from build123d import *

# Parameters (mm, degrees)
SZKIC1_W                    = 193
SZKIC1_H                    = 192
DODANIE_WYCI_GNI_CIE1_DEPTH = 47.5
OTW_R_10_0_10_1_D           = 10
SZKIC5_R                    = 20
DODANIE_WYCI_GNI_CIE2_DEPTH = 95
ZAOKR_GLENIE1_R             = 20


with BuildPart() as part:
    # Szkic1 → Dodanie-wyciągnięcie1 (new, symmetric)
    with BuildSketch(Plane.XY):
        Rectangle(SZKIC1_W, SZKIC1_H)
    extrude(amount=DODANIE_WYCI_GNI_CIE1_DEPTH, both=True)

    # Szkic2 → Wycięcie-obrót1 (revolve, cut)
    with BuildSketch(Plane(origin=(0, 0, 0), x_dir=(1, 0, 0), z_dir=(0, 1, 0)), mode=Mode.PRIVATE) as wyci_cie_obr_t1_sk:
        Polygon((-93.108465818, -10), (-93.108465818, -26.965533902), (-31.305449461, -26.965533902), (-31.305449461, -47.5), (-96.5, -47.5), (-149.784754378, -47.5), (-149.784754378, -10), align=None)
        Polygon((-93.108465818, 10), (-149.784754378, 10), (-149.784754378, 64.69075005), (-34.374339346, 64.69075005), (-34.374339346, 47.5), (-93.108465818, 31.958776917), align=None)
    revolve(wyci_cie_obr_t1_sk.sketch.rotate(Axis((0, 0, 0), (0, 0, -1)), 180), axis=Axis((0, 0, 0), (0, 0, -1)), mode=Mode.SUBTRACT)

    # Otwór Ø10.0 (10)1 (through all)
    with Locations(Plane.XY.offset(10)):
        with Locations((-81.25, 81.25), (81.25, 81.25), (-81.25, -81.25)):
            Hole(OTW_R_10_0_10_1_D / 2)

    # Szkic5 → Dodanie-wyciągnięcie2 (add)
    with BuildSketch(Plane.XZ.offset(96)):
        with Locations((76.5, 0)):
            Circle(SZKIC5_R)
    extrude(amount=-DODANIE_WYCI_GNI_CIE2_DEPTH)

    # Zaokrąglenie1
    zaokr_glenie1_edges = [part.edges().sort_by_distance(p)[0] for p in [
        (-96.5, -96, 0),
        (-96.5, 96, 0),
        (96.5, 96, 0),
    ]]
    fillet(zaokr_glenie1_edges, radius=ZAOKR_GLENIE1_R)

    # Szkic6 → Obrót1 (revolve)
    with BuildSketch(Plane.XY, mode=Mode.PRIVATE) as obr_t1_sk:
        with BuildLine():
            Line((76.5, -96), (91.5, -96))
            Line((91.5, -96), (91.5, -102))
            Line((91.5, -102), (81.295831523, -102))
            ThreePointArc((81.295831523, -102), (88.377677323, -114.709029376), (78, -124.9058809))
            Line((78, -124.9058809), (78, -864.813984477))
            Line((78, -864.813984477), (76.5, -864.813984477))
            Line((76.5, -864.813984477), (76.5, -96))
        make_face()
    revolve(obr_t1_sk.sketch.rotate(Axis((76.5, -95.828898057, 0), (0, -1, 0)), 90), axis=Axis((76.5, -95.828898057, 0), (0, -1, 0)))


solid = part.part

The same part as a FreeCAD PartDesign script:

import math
import FreeCAD as App
import Part
import Sketcher
from FreeCAD import Vector
Q = App.Units.Quantity


def edges_at(feature, points):
    """Names of the edges that pass closest to the given points."""
    edges = feature.Shape.Edges
    near = lambda p: min(range(len(edges)), key=lambda i: edges[i].distToShape(Part.Vertex(*p))[0])
    return sorted({f"Edge{near(p) + 1}" for p in points})


def add_polygon(sketch, points):
    """Adds a closed chain of lines whose ends are joined by coincident constraints."""
    first, n = sketch.GeometryCount, len(points)
    for a, b in zip(points, points[1:] + points[:1]):
        sketch.addGeometry(Part.LineSegment(App.Vector(*a, 0), App.Vector(*b, 0)), False)
    for i in range(n):
        sketch.addConstraint(Sketcher.Constraint("Coincident", first + i, 2, first + (i + 1) % n, 1))

doc = App.newDocument("Part")
body = doc.addObject("PartDesign::Body", "Body")

# Sketch on XY plane
sketch1 = body.newObject("Sketcher::SketchObject", "Sketch")
sketch1.AttachmentSupport = (doc.getObject("XY_Plane"), [""])
sketch1.MapMode = "FlatFace"
add_polygon(sketch1, [(-96, 96), (-96, -96), (96, -96), (96, 96)])  # lines 0-3
sketch1.addConstraint([
    Sketcher.Constraint("Vertical", 0),
    Sketcher.Constraint("Horizontal", 1),
    Sketcher.Constraint("Vertical", 2),
    Sketcher.Constraint("Horizontal", 3),
    Sketcher.Constraint("Symmetric", 0, 2, 2, 2, -1, 1),
    Sketcher.Constraint("DistanceX", 1, 1, 1, 2, Q("193 mm")),
    Sketcher.Constraint("DistanceY", 0, 2, 0, 1, Q("192 mm")),
])
pad1 = body.newObject("PartDesign::Pad", "Pad")
pad1.Profile = sketch1
pad1.Length = 95
pad1.Midplane = True

# Sketch on XZ plane
sketch2 = body.newObject("Sketcher::SketchObject", "Sketch001")
sketch2.AttachmentSupport = (doc.getObject("XZ_Plane"), [""])
sketch2.MapMode = "FlatFace"
add_polygon(sketch2, [(-93, 27), (-93, 10), (-150, 10), (-150, 48), (-31, 48), (-31, 27)])  # lines 0-5
add_polygon(sketch2, [(-150, -10), (-93, -10), (-93, -32), (-34, -48), (-34, -65), (-150, -65)])  # lines 6-11
sketch2.addConstraint([
    Sketcher.Constraint("Vertical", 0),
    Sketcher.Constraint("Horizontal", 1),
    Sketcher.Constraint("Vertical", 2),
    Sketcher.Constraint("Horizontal", 3),
    Sketcher.Constraint("Vertical", 4),
    Sketcher.Constraint("Horizontal", 5),
    Sketcher.Constraint("Horizontal", 6),
    Sketcher.Constraint("Vertical", 7),
    Sketcher.Constraint("Vertical", 9),
    Sketcher.Constraint("Horizontal", 10),
    Sketcher.Constraint("Vertical", 11),
    Sketcher.Constraint("Symmetric", 0, 2, 6, 2, -1),
    Sketcher.Constraint("Vertical", 2, 2, 10, 2),
    Sketcher.Constraint("DistanceY", 2, 1, 2, 2, Q("37.5 mm")),
    Sketcher.Constraint("DistanceY", -1, 1, 0, 2, Q("10 mm")),
    Sketcher.Constraint("DistanceY", 8, 2, -1, 1, Q("47.5 mm")),
    Sketcher.Constraint("DistanceX", 1, 2, 1, 1, Q("56.676289 mm")),
    Sketcher.Constraint("DistanceY", 9, 2, 9, 1, Q("17.19075 mm")),
    Sketcher.Constraint("Distance", 8, Q("60.755471 mm")),
    Sketcher.Constraint("DistanceX", 3, 1, 3, 2, Q("118.479305 mm")),
    Sketcher.Constraint("DistanceX", 10, 2, 10, 1, Q("115.410415 mm")),
    Sketcher.Constraint("DistanceY", 0, 2, 0, 1, Q("16.965534 mm")),
    Sketcher.Constraint("DistanceX", 3, 2, -1, 1, Q("31.305449 mm")),
])
groove = body.newObject("PartDesign::Groove", "Groove")
groove.Profile = sketch2
groove.ReferenceAxis = (sketch2, ["V_Axis"])
groove.Angle = 360

# Sketch on XY plane
sketch3 = body.newObject("Sketcher::SketchObject", "Sketch002")
sketch3.AttachmentSupport = (doc.getObject("XY_Plane"), [""])
sketch3.MapMode = "FlatFace"
sketch3.AttachmentOffset = App.Placement(Vector(0, 0, 10), App.Rotation())
sketch3.addGeometry([
    Part.Circle(Vector(-81, 81, 0), Vector(0, 0, 1), 5),
    Part.Circle(Vector(81, 81, 0), Vector(0, 0, 1), 5),
    Part.Circle(Vector(-81, -81, 0), Vector(0, 0, 1), 5),
], False)
sketch3.addConstraint([
    Sketcher.Constraint("Equal", 0, 1),
    Sketcher.Constraint("Equal", 1, 2),
    Sketcher.Constraint("Symmetric", 1, 3, 2, 3, -1, 1),
    Sketcher.Constraint("Symmetric", 0, 3, 1, 3, -2),
    Sketcher.Constraint("Diameter", 0, Q("10 mm")),
    Sketcher.Constraint("DistanceX", 0, 3, 1, 3, Q("162.5 mm")),
    Sketcher.Constraint("DistanceY", 2, 3, 0, 3, Q("162.5 mm")),
])
doc.recompute()
hole = body.newObject("PartDesign::Hole", "Hole")
hole.Profile = sketch3
hole.ThreadType = "None"
hole.Diameter = 10
hole.DepthType = "ThroughAll"

# Sketch on XZ plane
sketch4 = body.newObject("Sketcher::SketchObject", "Sketch003")
sketch4.AttachmentSupport = (doc.getObject("XZ_Plane"), [""])
sketch4.MapMode = "FlatFace"
sketch4.AttachmentOffset = App.Placement(Vector(0, 0, 96), App.Rotation())
sketch4.addGeometry(Part.Circle(Vector(76, 0, 0), Vector(0, 0, 1), 20), False)
sketch4.addConstraint([
    Sketcher.Constraint("PointOnObject", 0, 3, -1),
    Sketcher.Constraint("Diameter", 0, Q("40 mm")),
    Sketcher.Constraint("DistanceX", -1, 1, 0, 3, Q("76.5 mm")),
])
pad2 = body.newObject("PartDesign::Pad", "Pad001")
pad2.Profile = sketch4
pad2.Length = 95
pad2.Reversed = True
doc.recompute()

fillet = body.newObject("PartDesign::Fillet", "Fillet")
fillet.Base = (pad2, edges_at(pad2, [(-96.5, -96, 0), (-96.5, 96, 0), (96.5, 96, 0)]))
fillet.Radius = 20

# Sketch on XY plane
sketch5 = body.newObject("Sketcher::SketchObject", "Sketch004")
sketch5.AttachmentSupport = (doc.getObject("XY_Plane"), [""])
sketch5.MapMode = "FlatFace"
sketch5.addGeometry([
    Part.LineSegment(Vector(91.5, -96, 0), Vector(76.5, -96, 0)),  # 0
    Part.LineSegment(Vector(76.5, -96, 0), Vector(76.5, -864.8, 0)),  # 1
    Part.LineSegment(Vector(76.5, -864.8, 0), Vector(78, -864.8, 0)),  # 2
    Part.LineSegment(Vector(78, -864.8, 0), Vector(78, -124.9, 0)),  # 3
    Part.ArcOfCircle(Part.Circle(Vector(76.5, -113, 0), Vector(0, 0, 1), 12), math.radians(-83), math.radians(66)),  # 4
    Part.LineSegment(Vector(81.3, -102, 0), Vector(91.5, -102, 0)),  # 5
    Part.LineSegment(Vector(91.5, -102, 0), Vector(91.5, -96, 0)),  # 6
], False)
sketch5.addGeometry(Part.LineSegment(Vector(76.5, -96, 0), Vector(76.5, -864.8, 0)), True)  # axis
sketch5.addConstraint([
    Sketcher.Constraint("Coincident", 0, 2, 1, 1),
    Sketcher.Constraint("Coincident", 1, 2, 2, 1),
    Sketcher.Constraint("Coincident", 2, 2, 3, 1),
    Sketcher.Constraint("Coincident", 3, 2, 4, 1),
    Sketcher.Constraint("Coincident", 4, 2, 5, 1),
    Sketcher.Constraint("Coincident", 5, 2, 6, 1),
    Sketcher.Constraint("Coincident", 6, 2, 0, 1),
    Sketcher.Constraint("Horizontal", 0),
    Sketcher.Constraint("Vertical", 1),
    Sketcher.Constraint("Horizontal", 2),
    Sketcher.Constraint("Vertical", 3),
    Sketcher.Constraint("Horizontal", 5),
    Sketcher.Constraint("Vertical", 6),
    Sketcher.Constraint("Vertical", 7),
    Sketcher.Constraint("Coincident", 7, 1, 0, 2),
    Sketcher.Constraint("Horizontal", 2, 2, 7, 2),
    Sketcher.Constraint("Vertical", 4, 3, 0, 2),
    Sketcher.Constraint("Radius", 4, Q("12 mm")),
    Sketcher.Constraint("DistanceX", 0, 2, 0, 1, Q("15 mm")),
    Sketcher.Constraint("DistanceY", 6, 1, 6, 2, Q("6 mm")),
    Sketcher.Constraint("DistanceX", 2, 1, 2, 2, Q("1.5 mm")),
    Sketcher.Constraint("DistanceY", 4, 3, -1, 1, Q("113 mm")),
    Sketcher.Constraint("DistanceY", 0, 2, -1, 1, Q("96 mm")),
    Sketcher.Constraint("DistanceX", -1, 1, 2, 2, Q("78 mm")),
    Sketcher.Constraint("DistanceY", 1, 2, 1, 1, Q("768.813984 mm")),
])
revolution = body.newObject("PartDesign::Revolution", "Revolution")
revolution.Profile = sketch5
revolution.ReferenceAxis = (sketch5, ["Axis0"])
revolution.Angle = 360

doc.recompute()
